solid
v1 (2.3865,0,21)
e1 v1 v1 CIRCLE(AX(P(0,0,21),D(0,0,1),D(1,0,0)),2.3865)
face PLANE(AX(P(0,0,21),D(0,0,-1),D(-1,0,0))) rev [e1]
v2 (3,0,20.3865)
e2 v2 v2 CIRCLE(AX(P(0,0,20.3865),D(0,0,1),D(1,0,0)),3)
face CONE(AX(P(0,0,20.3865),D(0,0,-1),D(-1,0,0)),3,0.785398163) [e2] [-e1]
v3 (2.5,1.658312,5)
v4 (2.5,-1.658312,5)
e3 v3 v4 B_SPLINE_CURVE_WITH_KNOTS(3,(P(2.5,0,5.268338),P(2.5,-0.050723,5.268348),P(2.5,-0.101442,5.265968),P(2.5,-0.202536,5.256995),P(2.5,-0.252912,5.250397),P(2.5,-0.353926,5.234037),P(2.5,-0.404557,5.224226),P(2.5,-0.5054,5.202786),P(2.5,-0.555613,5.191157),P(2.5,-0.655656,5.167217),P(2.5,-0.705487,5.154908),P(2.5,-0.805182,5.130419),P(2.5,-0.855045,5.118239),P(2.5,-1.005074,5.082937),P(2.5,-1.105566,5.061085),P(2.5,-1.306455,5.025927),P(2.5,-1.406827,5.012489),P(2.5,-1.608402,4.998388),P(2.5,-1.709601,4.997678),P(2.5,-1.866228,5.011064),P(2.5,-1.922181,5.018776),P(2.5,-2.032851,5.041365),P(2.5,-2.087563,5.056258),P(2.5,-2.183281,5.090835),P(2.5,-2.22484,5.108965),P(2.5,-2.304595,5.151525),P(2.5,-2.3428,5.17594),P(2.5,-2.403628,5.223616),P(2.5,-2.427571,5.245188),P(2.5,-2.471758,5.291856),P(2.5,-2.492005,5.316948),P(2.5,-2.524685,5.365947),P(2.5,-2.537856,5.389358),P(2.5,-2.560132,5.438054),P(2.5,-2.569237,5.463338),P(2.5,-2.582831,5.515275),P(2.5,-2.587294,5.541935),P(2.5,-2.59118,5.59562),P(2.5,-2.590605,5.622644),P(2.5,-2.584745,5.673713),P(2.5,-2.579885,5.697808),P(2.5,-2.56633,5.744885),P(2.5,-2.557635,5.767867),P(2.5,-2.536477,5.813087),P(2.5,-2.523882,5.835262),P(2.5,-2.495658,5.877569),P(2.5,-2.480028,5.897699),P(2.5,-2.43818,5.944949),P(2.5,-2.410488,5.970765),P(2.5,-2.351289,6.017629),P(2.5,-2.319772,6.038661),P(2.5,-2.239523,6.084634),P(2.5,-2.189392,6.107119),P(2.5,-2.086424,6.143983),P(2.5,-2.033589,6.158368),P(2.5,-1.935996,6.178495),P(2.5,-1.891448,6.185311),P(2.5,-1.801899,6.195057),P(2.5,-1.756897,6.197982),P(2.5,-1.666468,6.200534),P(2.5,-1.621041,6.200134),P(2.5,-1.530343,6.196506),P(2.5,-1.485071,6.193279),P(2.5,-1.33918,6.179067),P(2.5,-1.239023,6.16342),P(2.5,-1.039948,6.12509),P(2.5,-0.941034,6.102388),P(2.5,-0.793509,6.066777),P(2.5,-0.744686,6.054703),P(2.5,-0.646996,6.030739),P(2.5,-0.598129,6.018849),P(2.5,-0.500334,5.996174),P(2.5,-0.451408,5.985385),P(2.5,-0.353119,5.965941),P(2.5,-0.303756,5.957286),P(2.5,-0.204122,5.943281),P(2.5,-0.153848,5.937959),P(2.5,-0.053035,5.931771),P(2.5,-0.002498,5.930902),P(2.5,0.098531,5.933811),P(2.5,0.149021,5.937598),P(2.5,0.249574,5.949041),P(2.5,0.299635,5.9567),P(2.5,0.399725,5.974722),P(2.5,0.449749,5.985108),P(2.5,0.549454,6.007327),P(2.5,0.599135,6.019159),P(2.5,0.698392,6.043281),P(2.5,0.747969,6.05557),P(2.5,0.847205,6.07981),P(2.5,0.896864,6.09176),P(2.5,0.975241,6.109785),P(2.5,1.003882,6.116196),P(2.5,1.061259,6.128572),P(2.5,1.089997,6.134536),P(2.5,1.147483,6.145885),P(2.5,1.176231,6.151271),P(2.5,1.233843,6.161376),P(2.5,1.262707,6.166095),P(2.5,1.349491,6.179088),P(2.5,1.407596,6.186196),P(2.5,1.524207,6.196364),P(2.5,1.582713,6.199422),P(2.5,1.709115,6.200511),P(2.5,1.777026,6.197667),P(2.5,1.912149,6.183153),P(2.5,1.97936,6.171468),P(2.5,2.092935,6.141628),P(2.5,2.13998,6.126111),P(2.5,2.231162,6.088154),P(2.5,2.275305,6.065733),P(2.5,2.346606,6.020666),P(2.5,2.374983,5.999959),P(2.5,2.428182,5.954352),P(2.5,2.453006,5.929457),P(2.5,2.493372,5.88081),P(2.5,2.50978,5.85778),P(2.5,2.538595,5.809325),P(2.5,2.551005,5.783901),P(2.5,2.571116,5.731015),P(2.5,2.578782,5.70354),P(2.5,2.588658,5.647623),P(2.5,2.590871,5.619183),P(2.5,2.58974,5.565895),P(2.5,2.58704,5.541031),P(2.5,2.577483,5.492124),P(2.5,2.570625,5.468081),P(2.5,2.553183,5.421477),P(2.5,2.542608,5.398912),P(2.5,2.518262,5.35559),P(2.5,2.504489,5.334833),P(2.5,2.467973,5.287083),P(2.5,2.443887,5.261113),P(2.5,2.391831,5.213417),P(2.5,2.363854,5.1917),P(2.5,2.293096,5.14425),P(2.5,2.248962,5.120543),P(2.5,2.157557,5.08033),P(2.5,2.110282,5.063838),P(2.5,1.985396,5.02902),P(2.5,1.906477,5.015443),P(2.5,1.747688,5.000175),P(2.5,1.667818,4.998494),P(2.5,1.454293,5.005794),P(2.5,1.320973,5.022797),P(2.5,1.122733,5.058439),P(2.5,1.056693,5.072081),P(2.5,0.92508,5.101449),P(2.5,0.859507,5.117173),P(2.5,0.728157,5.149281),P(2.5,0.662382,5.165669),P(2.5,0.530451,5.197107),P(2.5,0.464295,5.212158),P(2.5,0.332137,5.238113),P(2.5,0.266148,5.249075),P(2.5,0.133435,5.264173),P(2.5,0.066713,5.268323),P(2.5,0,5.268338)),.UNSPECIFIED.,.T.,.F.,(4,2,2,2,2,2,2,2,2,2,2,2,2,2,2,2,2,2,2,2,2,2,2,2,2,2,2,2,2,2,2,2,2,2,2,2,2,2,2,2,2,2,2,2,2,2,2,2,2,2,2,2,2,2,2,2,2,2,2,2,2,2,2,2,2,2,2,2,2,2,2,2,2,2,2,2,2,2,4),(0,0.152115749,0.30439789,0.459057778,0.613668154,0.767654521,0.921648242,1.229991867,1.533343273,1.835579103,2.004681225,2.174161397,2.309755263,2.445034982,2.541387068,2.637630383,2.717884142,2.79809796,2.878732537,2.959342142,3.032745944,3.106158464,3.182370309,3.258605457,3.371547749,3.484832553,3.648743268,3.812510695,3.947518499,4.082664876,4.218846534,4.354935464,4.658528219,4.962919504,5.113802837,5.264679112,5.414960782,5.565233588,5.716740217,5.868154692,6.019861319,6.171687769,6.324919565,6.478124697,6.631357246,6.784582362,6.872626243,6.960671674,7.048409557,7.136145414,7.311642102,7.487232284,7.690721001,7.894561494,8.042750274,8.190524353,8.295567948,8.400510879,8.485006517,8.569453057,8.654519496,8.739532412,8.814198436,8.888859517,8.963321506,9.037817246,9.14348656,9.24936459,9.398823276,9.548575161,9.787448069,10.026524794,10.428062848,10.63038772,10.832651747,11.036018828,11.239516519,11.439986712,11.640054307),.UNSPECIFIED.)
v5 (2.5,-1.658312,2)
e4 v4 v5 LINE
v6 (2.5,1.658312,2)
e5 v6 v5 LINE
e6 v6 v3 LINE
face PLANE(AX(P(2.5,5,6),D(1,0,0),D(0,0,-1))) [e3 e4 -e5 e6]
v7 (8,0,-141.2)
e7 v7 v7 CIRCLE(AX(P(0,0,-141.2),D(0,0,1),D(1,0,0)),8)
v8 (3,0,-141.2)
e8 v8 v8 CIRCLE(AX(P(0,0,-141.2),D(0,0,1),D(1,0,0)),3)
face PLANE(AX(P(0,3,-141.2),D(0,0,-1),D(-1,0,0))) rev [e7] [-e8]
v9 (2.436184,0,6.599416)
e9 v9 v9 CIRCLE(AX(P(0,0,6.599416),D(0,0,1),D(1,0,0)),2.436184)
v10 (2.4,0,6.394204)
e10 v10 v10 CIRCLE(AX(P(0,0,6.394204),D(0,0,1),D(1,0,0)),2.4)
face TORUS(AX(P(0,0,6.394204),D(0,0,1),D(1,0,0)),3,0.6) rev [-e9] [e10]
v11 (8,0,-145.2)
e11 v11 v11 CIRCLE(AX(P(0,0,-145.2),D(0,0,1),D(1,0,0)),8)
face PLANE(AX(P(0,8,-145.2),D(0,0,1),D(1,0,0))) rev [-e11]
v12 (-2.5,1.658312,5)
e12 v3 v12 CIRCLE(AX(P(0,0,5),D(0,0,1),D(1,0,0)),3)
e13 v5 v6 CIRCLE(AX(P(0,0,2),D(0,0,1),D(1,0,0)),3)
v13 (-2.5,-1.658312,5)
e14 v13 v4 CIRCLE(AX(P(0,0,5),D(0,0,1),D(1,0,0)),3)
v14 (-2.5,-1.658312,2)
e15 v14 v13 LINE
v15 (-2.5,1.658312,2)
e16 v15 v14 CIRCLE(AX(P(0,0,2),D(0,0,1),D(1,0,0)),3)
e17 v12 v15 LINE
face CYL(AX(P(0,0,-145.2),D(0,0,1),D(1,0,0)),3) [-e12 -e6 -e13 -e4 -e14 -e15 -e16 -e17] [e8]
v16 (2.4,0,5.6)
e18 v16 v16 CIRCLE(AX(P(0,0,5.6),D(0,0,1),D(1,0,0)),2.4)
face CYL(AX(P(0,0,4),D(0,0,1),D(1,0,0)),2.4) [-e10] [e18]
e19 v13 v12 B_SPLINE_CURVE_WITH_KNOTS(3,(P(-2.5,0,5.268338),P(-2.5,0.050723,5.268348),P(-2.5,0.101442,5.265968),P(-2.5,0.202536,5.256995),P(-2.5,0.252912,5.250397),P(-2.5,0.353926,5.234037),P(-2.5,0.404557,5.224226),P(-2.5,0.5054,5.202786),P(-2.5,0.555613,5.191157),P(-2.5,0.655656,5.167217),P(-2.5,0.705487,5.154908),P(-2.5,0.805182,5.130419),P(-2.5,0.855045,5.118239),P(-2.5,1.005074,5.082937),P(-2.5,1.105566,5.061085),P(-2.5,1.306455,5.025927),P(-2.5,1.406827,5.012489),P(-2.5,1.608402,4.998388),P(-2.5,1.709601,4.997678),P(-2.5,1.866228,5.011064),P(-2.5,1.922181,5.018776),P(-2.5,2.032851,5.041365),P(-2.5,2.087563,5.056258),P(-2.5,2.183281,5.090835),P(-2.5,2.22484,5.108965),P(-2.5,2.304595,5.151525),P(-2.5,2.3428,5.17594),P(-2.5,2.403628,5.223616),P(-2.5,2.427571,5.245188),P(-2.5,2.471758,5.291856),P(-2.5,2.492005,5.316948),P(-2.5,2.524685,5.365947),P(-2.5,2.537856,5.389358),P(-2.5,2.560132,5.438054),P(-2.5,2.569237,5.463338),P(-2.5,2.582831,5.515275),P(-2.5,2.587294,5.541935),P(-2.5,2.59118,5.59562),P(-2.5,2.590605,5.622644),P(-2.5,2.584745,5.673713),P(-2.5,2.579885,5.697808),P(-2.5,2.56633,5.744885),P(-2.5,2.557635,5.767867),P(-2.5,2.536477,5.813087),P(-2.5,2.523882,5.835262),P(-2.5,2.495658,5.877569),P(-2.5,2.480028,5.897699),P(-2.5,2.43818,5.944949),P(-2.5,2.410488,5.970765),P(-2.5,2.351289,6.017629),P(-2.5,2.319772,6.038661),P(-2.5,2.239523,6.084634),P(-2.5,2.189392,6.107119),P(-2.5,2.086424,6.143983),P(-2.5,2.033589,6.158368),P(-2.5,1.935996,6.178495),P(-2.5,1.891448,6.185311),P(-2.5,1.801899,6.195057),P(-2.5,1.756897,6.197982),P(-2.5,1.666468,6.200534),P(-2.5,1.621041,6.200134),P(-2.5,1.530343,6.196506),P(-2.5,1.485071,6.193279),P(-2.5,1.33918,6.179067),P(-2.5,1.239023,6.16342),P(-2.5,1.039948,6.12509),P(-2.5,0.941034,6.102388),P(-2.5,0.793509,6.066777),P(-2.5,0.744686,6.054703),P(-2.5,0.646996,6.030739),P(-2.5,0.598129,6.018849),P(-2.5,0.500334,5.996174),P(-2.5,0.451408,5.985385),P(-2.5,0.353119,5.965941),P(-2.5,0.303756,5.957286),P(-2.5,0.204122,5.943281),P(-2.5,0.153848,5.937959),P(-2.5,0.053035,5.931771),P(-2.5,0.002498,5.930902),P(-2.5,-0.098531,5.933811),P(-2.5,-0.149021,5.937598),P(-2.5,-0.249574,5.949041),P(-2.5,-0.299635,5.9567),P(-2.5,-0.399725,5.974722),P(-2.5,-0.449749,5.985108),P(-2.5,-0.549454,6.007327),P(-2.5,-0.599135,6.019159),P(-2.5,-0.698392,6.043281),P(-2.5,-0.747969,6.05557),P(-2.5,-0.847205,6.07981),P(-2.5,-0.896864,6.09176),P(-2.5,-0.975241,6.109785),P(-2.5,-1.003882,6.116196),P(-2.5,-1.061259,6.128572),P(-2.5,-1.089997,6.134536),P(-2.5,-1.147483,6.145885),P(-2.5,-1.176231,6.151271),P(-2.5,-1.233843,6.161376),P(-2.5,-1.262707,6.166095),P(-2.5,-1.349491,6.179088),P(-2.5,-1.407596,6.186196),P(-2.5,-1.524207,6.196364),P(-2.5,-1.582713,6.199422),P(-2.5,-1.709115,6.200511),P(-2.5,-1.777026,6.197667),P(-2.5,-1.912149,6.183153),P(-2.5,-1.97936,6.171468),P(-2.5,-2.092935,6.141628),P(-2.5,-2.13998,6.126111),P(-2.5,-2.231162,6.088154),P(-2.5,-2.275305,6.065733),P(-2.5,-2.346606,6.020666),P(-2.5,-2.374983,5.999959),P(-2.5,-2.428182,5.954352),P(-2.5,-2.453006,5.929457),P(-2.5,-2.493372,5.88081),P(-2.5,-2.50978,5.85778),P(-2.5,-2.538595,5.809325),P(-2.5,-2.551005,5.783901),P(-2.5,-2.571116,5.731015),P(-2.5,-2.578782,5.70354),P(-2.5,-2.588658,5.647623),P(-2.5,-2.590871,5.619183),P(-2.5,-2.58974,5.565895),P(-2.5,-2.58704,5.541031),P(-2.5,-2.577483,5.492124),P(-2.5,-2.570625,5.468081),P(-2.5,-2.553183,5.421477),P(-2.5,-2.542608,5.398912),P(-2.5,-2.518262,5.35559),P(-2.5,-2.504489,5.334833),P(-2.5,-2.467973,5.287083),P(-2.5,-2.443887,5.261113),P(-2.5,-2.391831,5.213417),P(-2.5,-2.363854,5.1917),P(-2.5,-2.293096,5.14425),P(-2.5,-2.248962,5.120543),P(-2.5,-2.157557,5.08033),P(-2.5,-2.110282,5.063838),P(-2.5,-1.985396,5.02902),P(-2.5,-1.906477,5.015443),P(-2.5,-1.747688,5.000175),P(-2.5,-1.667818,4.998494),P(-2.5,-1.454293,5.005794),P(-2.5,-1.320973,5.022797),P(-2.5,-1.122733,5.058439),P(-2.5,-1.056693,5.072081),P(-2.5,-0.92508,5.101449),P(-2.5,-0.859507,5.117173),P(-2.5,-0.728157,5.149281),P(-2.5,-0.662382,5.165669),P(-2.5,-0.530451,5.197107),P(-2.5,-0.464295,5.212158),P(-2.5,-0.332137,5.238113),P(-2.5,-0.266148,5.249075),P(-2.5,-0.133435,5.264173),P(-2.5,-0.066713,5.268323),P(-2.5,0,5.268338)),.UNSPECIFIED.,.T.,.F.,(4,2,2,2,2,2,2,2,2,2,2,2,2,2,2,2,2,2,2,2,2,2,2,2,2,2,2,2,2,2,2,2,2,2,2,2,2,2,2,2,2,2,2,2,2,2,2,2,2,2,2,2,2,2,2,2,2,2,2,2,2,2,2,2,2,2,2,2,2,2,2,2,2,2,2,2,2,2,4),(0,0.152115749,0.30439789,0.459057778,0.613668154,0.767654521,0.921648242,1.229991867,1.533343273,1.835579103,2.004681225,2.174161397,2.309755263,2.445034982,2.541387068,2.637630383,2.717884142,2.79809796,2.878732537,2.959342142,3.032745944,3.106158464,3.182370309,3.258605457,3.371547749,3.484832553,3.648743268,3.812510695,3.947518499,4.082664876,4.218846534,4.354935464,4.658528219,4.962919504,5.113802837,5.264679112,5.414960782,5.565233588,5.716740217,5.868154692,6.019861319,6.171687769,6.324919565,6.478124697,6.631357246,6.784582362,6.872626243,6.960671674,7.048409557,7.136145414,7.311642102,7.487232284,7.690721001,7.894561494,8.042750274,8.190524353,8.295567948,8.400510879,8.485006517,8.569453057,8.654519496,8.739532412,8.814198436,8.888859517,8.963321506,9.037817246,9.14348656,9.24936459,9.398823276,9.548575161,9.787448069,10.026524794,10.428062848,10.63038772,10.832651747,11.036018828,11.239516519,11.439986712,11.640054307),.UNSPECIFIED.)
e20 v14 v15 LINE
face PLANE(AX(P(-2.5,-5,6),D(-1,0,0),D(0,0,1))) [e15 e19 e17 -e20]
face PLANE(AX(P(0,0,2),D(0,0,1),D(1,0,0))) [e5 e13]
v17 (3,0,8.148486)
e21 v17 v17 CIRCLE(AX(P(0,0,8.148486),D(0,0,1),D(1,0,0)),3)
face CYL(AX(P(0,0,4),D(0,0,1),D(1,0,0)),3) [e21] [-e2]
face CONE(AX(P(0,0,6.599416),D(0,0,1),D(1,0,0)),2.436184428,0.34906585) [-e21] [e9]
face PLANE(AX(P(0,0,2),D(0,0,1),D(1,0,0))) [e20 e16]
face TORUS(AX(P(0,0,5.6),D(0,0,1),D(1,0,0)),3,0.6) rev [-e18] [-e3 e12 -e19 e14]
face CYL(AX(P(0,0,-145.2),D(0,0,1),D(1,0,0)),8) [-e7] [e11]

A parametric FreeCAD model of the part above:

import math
import FreeCAD as App
import Part
import Sketcher

V = App.Vector
Q = App.Units.Quantity


def add_polygon(sketch, points):
    """Adds a closed chain of lines whose ends are joined by coincident constraints."""
    first, n = sketch.GeometryCount, len(points)
    for a, b in zip(points, points[1:] + points[:1]):
        sketch.addGeometry(Part.LineSegment(App.Vector(*a, 0), App.Vector(*b, 0)), False)
    for i in range(n):
        sketch.addConstraint(Sketcher.Constraint("Coincident", first + i, 2, first + (i + 1) % n, 1))

doc = App.newDocument("Part")
body = doc.addObject("PartDesign::Body", "Body")

# Sketch on YZ plane
sketch1 = doc.addObject("Sketcher::SketchObject", "Sketch")
body.addObject(sketch1)
sketch1.AttachmentSupport = (doc.YZ_Plane, [""])
sketch1.MapMode = "FlatFace"
add_polygon(sketch1, [(3, 5), (0, 5), (0, -145.2), (8, -145.2), (8, -141.2), (3, -141.2)])  # lines 0-5
sketch1.addConstraint([
    Sketcher.Constraint("Horizontal", 0),
    Sketcher.Constraint("Vertical", 1),
    Sketcher.Constraint("Horizontal", 2),
    Sketcher.Constraint("Vertical", 3),
    Sketcher.Constraint("Horizontal", 4),
    Sketcher.Constraint("Vertical", 5),
    Sketcher.Constraint("PointOnObject", 0, 2, -2),
    Sketcher.Constraint("DistanceX", 0, 2, 0, 1, Q("3 mm")),
    Sketcher.Constraint("DistanceX", 2, 1, 2, 2, Q("8 mm")),
    Sketcher.Constraint("DistanceY", 3, 1, 3, 2, Q("4 mm")),
    Sketcher.Constraint("DistanceY", 1, 2, 1, 1, Q("150.2 mm")),
    Sketcher.Constraint("DistanceY", -1, 1, 0, 2, Q("5 mm")),
])
revolution = doc.addObject("PartDesign::Revolution", "Revolution")
body.addObject(revolution)
revolution.Profile = sketch1
revolution.ReferenceAxis = (sketch1, ["V_Axis"])
revolution.Angle = 360

# Sketch on YZ plane
sketch2 = doc.addObject("Sketcher::SketchObject", "Sketch001")
body.addObject(sketch2)
sketch2.AttachmentSupport = (doc.YZ_Plane, [""])
sketch2.MapMode = "FlatFace"
sketch2.addGeometry([
    Part.LineSegment(V(2.3865, 21, 0), V(0, 21, 0)),  # 0
    Part.LineSegment(V(0, 21, 0), V(0, 4, 0)),  # 1
    Part.LineSegment(V(0, 4, 0), V(3, 4, 0)),  # 2
    Part.LineSegment(V(3, 4, 0), V(3, 5, 0)),  # 3
    Part.ArcOfCircle(Part.Circle(V(3, 5.6, 0), V(0, 0, 1), 0.6), math.radians(180), math.radians(270)),  # 4
    Part.LineSegment(V(2.4, 5.6, 0), V(2.4, 6.394204, 0)),  # 5
    Part.ArcOfCircle(Part.Circle(V(3, 6.394204, 0), V(0, 0, 1), 0.6), math.radians(160), math.radians(180)),  # 6
    Part.LineSegment(V(2.436184, 6.599416, 0), V(3, 8.148486, 0)),  # 7
    Part.LineSegment(V(3, 8.148486, 0), V(3, 20.3865, 0)),  # 8
    Part.LineSegment(V(3, 20.3865, 0), V(2.3865, 21, 0)),  # 9
], False)
sketch2.addConstraint([
    Sketcher.Constraint("Coincident", 0, 2, 1, 1),
    Sketcher.Constraint("Coincident", 1, 2, 2, 1),
    Sketcher.Constraint("Coincident", 2, 2, 3, 1),
    Sketcher.Constraint("Coincident", 3, 2, 4, 2),
    Sketcher.Constraint("Tangent", 4, 1, 5, 1),
    Sketcher.Constraint("Tangent", 5, 2, 6, 2),
    Sketcher.Constraint("Tangent", 6, 1, 7, 1),
    Sketcher.Constraint("Coincident", 7, 2, 8, 1),
    Sketcher.Constraint("Coincident", 8, 2, 9, 1),
    Sketcher.Constraint("Coincident", 9, 2, 0, 1),
    Sketcher.Constraint("Horizontal", 0),
    Sketcher.Constraint("Vertical", 1),
    Sketcher.Constraint("Horizontal", 2),
    Sketcher.Constraint("Vertical", 3),
    Sketcher.Constraint("Vertical", 5),
    Sketcher.Constraint("Vertical", 8),
    Sketcher.Constraint("Equal", 4, 6),
    Sketcher.Constraint("PointOnObject", 0, 2, -2),
    Sketcher.Constraint("Vertical", 6, 3, 2, 2),
    Sketcher.Constraint("Vertical", 3, 2, 7, 2),
    Sketcher.Constraint("Radius", 4, Q("0.6 mm")),
    Sketcher.Constraint("DistanceX", 2, 1, 2, 2, Q("3 mm")),
    Sketcher.Constraint("DistanceY", 1, 2, 1, 1, Q("17 mm")),
    Sketcher.Constraint("DistanceY", 3, 1, 3, 2, Q("1 mm")),
    Sketcher.Constraint("Angle", 7, Q("70 deg")),
    Sketcher.Constraint("Angle", 9, Q("135 deg")),
    Sketcher.Constraint("DistanceY", -1, 1, 0, 2, Q("21 mm")),
    Sketcher.Constraint("DistanceX", 0, 2, 0, 1, Q("2.3865 mm")),
    Sketcher.Constraint("DistanceY", 5, 1, 5, 2, Q("0.794204 mm")),
])
revolution2 = doc.addObject("PartDesign::Revolution", "Revolution001")
body.addObject(revolution2)
revolution2.Profile = sketch2
revolution2.ReferenceAxis = (sketch2, ["V_Axis"])
revolution2.Angle = 360

# Sketch on XY plane
sketch3 = doc.addObject("Sketcher::SketchObject", "Sketch002")
body.addObject(sketch3)
sketch3.AttachmentSupport = (doc.XY_Plane, [""])
sketch3.MapMode = "FlatFace"
sketch3.AttachmentOffset = App.Placement(V(0, 0, 2), App.Rotation())
add_polygon(sketch3, [(-5, 10), (-5, -5), (-2.5, -5), (-2.5, 5), (2.5, 5), (2.5, -5), (5, -5), (5, 10)])  # lines 0-7
sketch3.addConstraint([
    Sketcher.Constraint("Vertical", 0),
    Sketcher.Constraint("Horizontal", 1),
    Sketcher.Constraint("Vertical", 2),
    Sketcher.Constraint("Horizontal", 3),
    Sketcher.Constraint("Vertical", 4),
    Sketcher.Constraint("Horizontal", 5),
    Sketcher.Constraint("Vertical", 6),
    Sketcher.Constraint("Horizontal", 7),
    Sketcher.Constraint("Symmetric", 1, 2, 3, 2, -1, 1),
    Sketcher.Constraint("Symmetric", 0, 2, 5, 2, -2),
    Sketcher.Constraint("Equal", 7, 2),
    Sketcher.Constraint("DistanceX", 3, 1, 3, 2, Q("5 mm")),
    Sketcher.Constraint("DistanceX", 7, 2, 7, 1, Q("10 mm")),
    Sketcher.Constraint("DistanceY", 0, 2, 0, 1, Q("15 mm")),
])
pocket1 = doc.addObject("PartDesign::Pocket", "Pocket")
body.addObject(pocket1)
pocket1.Profile = sketch3
pocket1.Length = 4
pocket1.Reversed = True

doc.recompute()
